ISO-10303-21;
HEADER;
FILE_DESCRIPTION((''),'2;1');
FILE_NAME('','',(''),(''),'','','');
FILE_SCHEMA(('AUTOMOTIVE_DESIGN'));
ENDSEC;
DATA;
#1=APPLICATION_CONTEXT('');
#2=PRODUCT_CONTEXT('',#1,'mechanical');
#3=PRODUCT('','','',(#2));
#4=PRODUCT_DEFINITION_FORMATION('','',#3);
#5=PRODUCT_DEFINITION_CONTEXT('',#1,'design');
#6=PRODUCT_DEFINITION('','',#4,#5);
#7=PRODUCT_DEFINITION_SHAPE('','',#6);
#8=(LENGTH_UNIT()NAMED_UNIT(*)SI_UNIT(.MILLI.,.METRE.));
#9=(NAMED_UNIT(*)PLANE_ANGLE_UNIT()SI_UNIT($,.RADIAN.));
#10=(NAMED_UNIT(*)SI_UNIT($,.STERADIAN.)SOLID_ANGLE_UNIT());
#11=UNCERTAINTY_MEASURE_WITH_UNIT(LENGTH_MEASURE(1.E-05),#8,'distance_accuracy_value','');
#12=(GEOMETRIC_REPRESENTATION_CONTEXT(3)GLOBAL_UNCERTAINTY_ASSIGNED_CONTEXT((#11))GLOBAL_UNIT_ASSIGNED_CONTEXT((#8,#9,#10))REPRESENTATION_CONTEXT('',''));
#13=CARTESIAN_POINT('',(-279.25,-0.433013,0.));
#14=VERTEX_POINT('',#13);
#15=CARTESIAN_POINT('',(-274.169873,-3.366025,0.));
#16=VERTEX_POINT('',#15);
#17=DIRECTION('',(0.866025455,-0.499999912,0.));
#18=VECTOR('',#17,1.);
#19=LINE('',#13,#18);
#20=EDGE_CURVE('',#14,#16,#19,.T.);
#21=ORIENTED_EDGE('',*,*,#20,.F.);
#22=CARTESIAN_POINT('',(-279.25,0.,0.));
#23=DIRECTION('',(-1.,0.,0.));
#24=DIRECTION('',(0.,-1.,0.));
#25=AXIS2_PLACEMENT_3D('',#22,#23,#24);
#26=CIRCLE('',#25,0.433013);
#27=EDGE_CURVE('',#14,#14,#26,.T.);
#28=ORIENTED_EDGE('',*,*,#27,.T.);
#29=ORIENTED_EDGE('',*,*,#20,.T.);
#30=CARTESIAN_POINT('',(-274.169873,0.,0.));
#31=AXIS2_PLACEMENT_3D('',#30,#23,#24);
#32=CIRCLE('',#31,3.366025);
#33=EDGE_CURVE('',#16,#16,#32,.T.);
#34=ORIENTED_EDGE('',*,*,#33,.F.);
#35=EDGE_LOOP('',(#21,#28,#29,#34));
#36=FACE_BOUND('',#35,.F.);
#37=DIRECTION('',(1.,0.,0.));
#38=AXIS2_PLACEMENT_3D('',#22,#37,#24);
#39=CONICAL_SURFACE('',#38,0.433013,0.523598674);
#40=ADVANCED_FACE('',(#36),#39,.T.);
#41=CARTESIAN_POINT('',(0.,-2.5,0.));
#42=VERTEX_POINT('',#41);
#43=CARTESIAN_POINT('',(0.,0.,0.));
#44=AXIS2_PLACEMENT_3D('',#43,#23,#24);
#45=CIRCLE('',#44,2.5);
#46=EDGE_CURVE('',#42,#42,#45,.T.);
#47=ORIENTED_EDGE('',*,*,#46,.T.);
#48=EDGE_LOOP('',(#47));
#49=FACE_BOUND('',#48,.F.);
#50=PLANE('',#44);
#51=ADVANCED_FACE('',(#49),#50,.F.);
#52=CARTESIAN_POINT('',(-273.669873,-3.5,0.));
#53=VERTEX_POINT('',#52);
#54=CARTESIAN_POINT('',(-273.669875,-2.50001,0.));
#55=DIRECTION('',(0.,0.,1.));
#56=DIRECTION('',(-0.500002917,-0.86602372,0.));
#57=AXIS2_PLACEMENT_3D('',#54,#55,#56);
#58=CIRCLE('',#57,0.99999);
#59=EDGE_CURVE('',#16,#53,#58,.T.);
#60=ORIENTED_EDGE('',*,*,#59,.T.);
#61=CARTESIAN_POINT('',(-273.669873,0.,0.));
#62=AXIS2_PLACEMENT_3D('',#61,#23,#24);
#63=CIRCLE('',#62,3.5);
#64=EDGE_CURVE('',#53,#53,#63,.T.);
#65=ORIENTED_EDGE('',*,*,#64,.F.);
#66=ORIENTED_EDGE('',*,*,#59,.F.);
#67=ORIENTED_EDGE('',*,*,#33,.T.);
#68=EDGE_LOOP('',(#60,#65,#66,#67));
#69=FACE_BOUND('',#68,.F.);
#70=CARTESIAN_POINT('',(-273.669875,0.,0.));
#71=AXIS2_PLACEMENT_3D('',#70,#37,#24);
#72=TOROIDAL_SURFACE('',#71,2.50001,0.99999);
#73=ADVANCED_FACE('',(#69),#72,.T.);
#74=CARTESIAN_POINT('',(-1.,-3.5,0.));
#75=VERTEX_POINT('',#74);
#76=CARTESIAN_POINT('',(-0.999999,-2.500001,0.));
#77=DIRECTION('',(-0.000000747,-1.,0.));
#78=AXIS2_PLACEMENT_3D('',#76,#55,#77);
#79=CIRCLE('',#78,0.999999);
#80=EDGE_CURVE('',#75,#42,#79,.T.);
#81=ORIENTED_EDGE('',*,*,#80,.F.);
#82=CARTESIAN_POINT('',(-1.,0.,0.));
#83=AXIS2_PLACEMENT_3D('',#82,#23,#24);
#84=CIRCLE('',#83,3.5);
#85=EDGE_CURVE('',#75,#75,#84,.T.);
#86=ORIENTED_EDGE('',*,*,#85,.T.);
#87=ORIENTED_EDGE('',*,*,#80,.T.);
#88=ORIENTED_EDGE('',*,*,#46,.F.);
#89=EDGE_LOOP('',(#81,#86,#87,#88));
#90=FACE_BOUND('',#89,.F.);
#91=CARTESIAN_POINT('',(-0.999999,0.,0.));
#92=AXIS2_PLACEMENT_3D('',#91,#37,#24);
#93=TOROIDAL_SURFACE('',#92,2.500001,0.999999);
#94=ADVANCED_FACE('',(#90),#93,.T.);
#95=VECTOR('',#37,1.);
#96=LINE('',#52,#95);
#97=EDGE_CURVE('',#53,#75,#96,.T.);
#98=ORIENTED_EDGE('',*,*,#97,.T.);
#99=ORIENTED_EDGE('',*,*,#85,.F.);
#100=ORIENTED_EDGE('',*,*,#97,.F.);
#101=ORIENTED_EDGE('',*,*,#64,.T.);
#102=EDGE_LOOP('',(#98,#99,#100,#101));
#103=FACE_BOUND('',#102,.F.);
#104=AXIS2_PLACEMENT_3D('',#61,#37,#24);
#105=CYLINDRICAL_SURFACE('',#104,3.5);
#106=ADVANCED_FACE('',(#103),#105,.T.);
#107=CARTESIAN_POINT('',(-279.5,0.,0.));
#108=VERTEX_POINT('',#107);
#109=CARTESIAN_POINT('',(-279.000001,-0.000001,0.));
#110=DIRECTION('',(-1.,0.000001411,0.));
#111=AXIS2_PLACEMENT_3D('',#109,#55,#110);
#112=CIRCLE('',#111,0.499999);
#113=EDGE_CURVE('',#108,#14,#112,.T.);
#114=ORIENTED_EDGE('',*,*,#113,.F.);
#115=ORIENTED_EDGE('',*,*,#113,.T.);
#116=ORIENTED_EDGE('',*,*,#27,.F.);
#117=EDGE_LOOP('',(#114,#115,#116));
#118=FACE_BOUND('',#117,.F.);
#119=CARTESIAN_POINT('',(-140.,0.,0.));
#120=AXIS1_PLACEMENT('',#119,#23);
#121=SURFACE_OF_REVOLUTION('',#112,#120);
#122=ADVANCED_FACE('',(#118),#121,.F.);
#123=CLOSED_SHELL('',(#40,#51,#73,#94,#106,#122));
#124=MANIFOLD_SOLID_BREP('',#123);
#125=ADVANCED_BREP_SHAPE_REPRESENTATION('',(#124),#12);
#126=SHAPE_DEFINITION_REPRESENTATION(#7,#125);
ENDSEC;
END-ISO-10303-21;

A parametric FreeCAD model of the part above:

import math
import FreeCAD as App
import Part
import Sketcher

V = App.Vector
Q = App.Units.Quantity

doc = App.newDocument("Part")
body = doc.addObject("PartDesign::Body", "Body")

sketch1 = doc.addObject("Sketcher::SketchObject", "Sketch")
body.addObject(sketch1)
sketch1.AttachmentSupport = (doc.XY_Plane, [""])
sketch1.MapMode = "FlatFace"
sketch1.addGeometry([
    Part.ArcOfCircle(Part.Circle(V(-279, 0, 0), V(0, 0, 1), 0.5), math.radians(180), math.radians(240)),
    Part.LineSegment(V(-279.25, -0.43, 0), V(-274.17, -3.37, 0)),
    Part.ArcOfCircle(Part.Circle(V(-273.67, -2.5, 0), V(0, 0, 1), 1), math.radians(-120), math.radians(-90)),
    Part.LineSegment(V(-273.67, -3.5, 0), V(-1, -3.5, 0)),
    Part.ArcOfCircle(Part.Circle(V(-1, -2.5, 0), V(0, 0, 1), 1), math.radians(-90), math.radians(0)),
    Part.LineSegment(V(0, -2.5, 0), V(0, 0, 0)),
    Part.LineSegment(V(0, 0, 0), V(-279.5, 0, 0)),
], False)
sketch1.addConstraint([
    Sketcher.Constraint("Tangent", 0, 2, 1, 1),
    Sketcher.Constraint("Coincident", 1, 2, 2, 1),
    Sketcher.Constraint("Tangent", 2, 2, 3, 1),
    Sketcher.Constraint("Tangent", 3, 2, 4, 1),
    Sketcher.Constraint("Tangent", 4, 2, 5, 1),
    Sketcher.Constraint("Coincident", 5, 2, 6, 1),
    Sketcher.Constraint("Coincident", 6, 2, 0, 1),
    Sketcher.Constraint("Horizontal", 3),
    Sketcher.Constraint("Vertical", 5),
    Sketcher.Constraint("Horizontal", 6),
    Sketcher.Constraint("Coincident", 5, 2, -1, 1),
    Sketcher.Constraint("PointOnObject", 0, 3, -1),
    Sketcher.Constraint("Radius", 4, 0.999999),
    Sketcher.Constraint("Radius", 0, 0.499999),
    Sketcher.Constraint("Angle", 1, Q("-29.999994 deg")),
    Sketcher.Constraint("DistanceX", 6, 2, 6, 1, 279.5),
    Sketcher.Constraint("DistanceY", 5, 1, 5, 2, 2.5),
    Sketcher.Constraint("DistanceX", 1, 2, 2, 3, 0.499998),
    Sketcher.Constraint("Radius", 2, 0.99999),
])
revolution = doc.addObject("PartDesign::Revolution", "Revolution")
body.addObject(revolution)
revolution.Profile = sketch1
revolution.ReferenceAxis = (sketch1, ["H_Axis"])
revolution.Angle = 360

doc.recompute()
